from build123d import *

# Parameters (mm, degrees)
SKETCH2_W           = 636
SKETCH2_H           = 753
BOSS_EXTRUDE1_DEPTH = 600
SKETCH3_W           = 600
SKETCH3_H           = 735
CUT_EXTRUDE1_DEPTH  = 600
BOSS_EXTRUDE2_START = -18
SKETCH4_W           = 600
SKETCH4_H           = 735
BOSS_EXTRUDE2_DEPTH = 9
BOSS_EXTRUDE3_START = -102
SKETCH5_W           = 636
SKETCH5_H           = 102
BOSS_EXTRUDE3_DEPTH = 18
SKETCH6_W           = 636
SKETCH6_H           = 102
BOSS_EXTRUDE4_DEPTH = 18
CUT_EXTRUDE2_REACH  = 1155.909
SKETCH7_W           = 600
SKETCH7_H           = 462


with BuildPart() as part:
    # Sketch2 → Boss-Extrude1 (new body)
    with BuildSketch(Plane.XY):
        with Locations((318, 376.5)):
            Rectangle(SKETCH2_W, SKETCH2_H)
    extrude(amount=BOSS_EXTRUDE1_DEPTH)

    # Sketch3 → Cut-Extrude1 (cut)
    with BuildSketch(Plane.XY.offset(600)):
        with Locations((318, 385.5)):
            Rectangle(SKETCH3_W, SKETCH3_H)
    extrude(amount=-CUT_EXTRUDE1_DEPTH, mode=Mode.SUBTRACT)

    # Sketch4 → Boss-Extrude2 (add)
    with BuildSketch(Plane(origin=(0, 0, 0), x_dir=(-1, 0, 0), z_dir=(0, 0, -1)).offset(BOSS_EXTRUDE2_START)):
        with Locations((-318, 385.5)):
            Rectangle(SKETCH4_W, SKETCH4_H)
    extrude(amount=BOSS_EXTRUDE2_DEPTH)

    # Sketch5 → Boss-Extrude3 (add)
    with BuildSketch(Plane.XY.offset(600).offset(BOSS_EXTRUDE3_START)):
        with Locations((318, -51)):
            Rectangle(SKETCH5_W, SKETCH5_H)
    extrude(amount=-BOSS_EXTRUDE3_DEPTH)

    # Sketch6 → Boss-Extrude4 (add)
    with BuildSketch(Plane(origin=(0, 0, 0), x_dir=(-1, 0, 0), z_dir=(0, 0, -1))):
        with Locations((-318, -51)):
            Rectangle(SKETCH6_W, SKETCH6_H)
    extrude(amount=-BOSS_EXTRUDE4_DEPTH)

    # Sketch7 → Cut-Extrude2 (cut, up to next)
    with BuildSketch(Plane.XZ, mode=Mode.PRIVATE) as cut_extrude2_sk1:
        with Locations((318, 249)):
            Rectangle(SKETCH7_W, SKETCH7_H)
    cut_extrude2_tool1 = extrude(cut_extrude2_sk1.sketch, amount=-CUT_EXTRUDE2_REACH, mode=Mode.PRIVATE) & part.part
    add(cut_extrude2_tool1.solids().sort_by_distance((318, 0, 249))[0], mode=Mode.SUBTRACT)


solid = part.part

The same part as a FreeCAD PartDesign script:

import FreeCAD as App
import Part
import Sketcher
from FreeCAD import Vector
Q = App.Units.Quantity

doc = App.newDocument("Part")
body = doc.addObject("PartDesign::Body", "Body")

# Sketch on XY plane
sketch1 = body.newObject("Sketcher::SketchObject", "Sketch")
sketch1.AttachmentSupport = (doc.getObject("XY_Plane"), [""])
sketch1.MapMode = "FlatFace"
sketch1.addGeometry([
    Part.LineSegment(Vector(0, 753, 0), Vector(0, 0, 0)),
    Part.LineSegment(Vector(0, 0, 0), Vector(636, 0, 0)),
    Part.LineSegment(Vector(636, 0, 0), Vector(636, 753, 0)),
    Part.LineSegment(Vector(636, 753, 0), Vector(0, 753, 0)),
], False)
sketch1.addConstraint([
    Sketcher.Constraint("Coincident", 0, 2, 1, 1),
    Sketcher.Constraint("Coincident", 1, 2, 2, 1),
    Sketcher.Constraint("Coincident", 2, 2, 3, 1),
    Sketcher.Constraint("Coincident", 3, 2, 0, 1),
    Sketcher.Constraint("Vertical", 0),
    Sketcher.Constraint("Horizontal", 1),
    Sketcher.Constraint("Vertical", 2),
    Sketcher.Constraint("Horizontal", 3),
    Sketcher.Constraint("Coincident", 0, 2, -1, 1),
    Sketcher.Constraint("DistanceX", 1, 1, 1, 2, Q("636 mm")),
    Sketcher.Constraint("DistanceY", 0, 2, 0, 1, Q("753 mm")),
])
pad1 = body.newObject("PartDesign::Pad", "Pad")
pad1.Profile = sketch1
pad1.Length = 600

# Sketch on XY plane
sketch2 = body.newObject("Sketcher::SketchObject", "Sketch001")
sketch2.AttachmentSupport = (doc.getObject("XY_Plane"), [""])
sketch2.MapMode = "FlatFace"
sketch2.AttachmentOffset = App.Placement(Vector(0, 0, 600), App.Rotation())
sketch2.addGeometry([
    Part.LineSegment(Vector(18, 753, 0), Vector(18, 18, 0)),
    Part.LineSegment(Vector(18, 18, 0), Vector(618, 18, 0)),
    Part.LineSegment(Vector(618, 18, 0), Vector(618, 753, 0)),
    Part.LineSegment(Vector(618, 753, 0), Vector(18, 753, 0)),
], False)
sketch2.addConstraint([
    Sketcher.Constraint("Coincident", 0, 2, 1, 1),
    Sketcher.Constraint("Coincident", 1, 2, 2, 1),
    Sketcher.Constraint("Coincident", 2, 2, 3, 1),
    Sketcher.Constraint("Coincident", 3, 2, 0, 1),
    Sketcher.Constraint("Vertical", 0),
    Sketcher.Constraint("Horizontal", 1),
    Sketcher.Constraint("Vertical", 2),
    Sketcher.Constraint("Horizontal", 3),
    Sketcher.Constraint("DistanceX", 1, 1, 1, 2, Q("600 mm")),
    Sketcher.Constraint("DistanceY", 0, 2, 0, 1, Q("735 mm")),
    Sketcher.Constraint("DistanceX", -1, 1, 0, 2, Q("18 mm")),
    Sketcher.Constraint("DistanceY", -1, 1, 0, 2, Q("18 mm")),
])
pocket1 = body.newObject("PartDesign::Pocket", "Pocket")
pocket1.Profile = sketch2
pocket1.Length = 600

# Sketch on XY plane
sketch3 = body.newObject("Sketcher::SketchObject", "Sketch002")
sketch3.AttachmentSupport = (doc.getObject("XY_Plane"), [""])
sketch3.MapMode = "FlatFace"
sketch3.AttachmentOffset = App.Placement(Vector(0, 0, 18), App.Rotation())
sketch3.addGeometry([
    Part.LineSegment(Vector(618, 753, 0), Vector(618, 18, 0)),
    Part.LineSegment(Vector(618, 18, 0), Vector(18, 18, 0)),
    Part.LineSegment(Vector(18, 18, 0), Vector(18, 753, 0)),
    Part.LineSegment(Vector(18, 753, 0), Vector(618, 753, 0)),
], False)
sketch3.addConstraint([
    Sketcher.Constraint("Coincident", 0, 2, 1, 1),
    Sketcher.Constraint("Coincident", 1, 2, 2, 1),
    Sketcher.Constraint("Coincident", 2, 2, 3, 1),
    Sketcher.Constraint("Coincident", 3, 2, 0, 1),
    Sketcher.Constraint("Vertical", 0),
    Sketcher.Constraint("Horizontal", 1),
    Sketcher.Constraint("Vertical", 2),
    Sketcher.Constraint("Horizontal", 3),
    Sketcher.Constraint("DistanceX", 1, 2, 1, 1, Q("600 mm")),
    Sketcher.Constraint("DistanceY", 0, 2, 0, 1, Q("735 mm")),
    Sketcher.Constraint("DistanceX", -1, 1, 0, 2, Q("618 mm")),
    Sketcher.Constraint("DistanceY", -1, 1, 0, 2, Q("18 mm")),
])
pad2 = body.newObject("PartDesign::Pad", "Pad001")
pad2.Profile = sketch3
pad2.Length = 9
pad2.Reversed = True

# Sketch on XY plane
sketch4 = body.newObject("Sketcher::SketchObject", "Sketch003")
sketch4.AttachmentSupport = (doc.getObject("XY_Plane"), [""])
sketch4.MapMode = "FlatFace"
sketch4.AttachmentOffset = App.Placement(Vector(0, 0, 498), App.Rotation())
sketch4.addGeometry([
    Part.LineSegment(Vector(0, 0, 0), Vector(0, -102, 0)),
    Part.LineSegment(Vector(0, -102, 0), Vector(636, -102, 0)),
    Part.LineSegment(Vector(636, -102, 0), Vector(636, 0, 0)),
    Part.LineSegment(Vector(636, 0, 0), Vector(0, 0, 0)),
], False)
sketch4.addConstraint([
    Sketcher.Constraint("Coincident", 0, 2, 1, 1),
    Sketcher.Constraint("Coincident", 1, 2, 2, 1),
    Sketcher.Constraint("Coincident", 2, 2, 3, 1),
    Sketcher.Constraint("Coincident", 3, 2, 0, 1),
    Sketcher.Constraint("Vertical", 0),
    Sketcher.Constraint("Horizontal", 1),
    Sketcher.Constraint("Vertical", 2),
    Sketcher.Constraint("Horizontal", 3),
    Sketcher.Constraint("Coincident", 3, 2, -1, 1),
    Sketcher.Constraint("DistanceX", 1, 1, 1, 2, Q("636 mm")),
    Sketcher.Constraint("DistanceY", 0, 2, 0, 1, Q("102 mm")),
])
pad3 = body.newObject("PartDesign::Pad", "Pad002")
pad3.Profile = sketch4
pad3.Length = 18
pad3.Reversed = True

# Sketch on XY plane
sketch5 = body.newObject("Sketcher::SketchObject", "Sketch004")
sketch5.AttachmentSupport = (doc.getObject("XY_Plane"), [""])
sketch5.MapMode = "FlatFace"
sketch5.addGeometry([
    Part.LineSegment(Vector(636, 0, 0), Vector(636, -102, 0)),
    Part.LineSegment(Vector(636, -102, 0), Vector(0, -102, 0)),
    Part.LineSegment(Vector(0, -102, 0), Vector(0, 0, 0)),
    Part.LineSegment(Vector(0, 0, 0), Vector(636, 0, 0)),
], False)
sketch5.addConstraint([
    Sketcher.Constraint("Coincident", 0, 2, 1, 1),
    Sketcher.Constraint("Coincident", 1, 2, 2, 1),
    Sketcher.Constraint("Coincident", 2, 2, 3, 1),
    Sketcher.Constraint("Coincident", 3, 2, 0, 1),
    Sketcher.Constraint("Vertical", 0),
    Sketcher.Constraint("Horizontal", 1),
    Sketcher.Constraint("Vertical", 2),
    Sketcher.Constraint("Horizontal", 3),
    Sketcher.Constraint("Coincident", 2, 2, -1, 1),
    Sketcher.Constraint("DistanceX", 1, 2, 1, 1, Q("636 mm")),
    Sketcher.Constraint("DistanceY", 0, 2, 0, 1, Q("102 mm")),
])
pad4 = body.newObject("PartDesign::Pad", "Pad003")
pad4.Profile = sketch5
pad4.Length = 18

# Sketch on XZ plane
sketch6 = body.newObject("Sketcher::SketchObject", "Sketch005")
sketch6.AttachmentSupport = (doc.getObject("XZ_Plane"), [""])
sketch6.MapMode = "FlatFace"
sketch6.addGeometry([
    Part.LineSegment(Vector(18, 480, 0), Vector(18, 18, 0)),
    Part.LineSegment(Vector(18, 18, 0), Vector(618, 18, 0)),
    Part.LineSegment(Vector(618, 18, 0), Vector(618, 480, 0)),
    Part.LineSegment(Vector(618, 480, 0), Vector(18, 480, 0)),
], False)
sketch6.addConstraint([
    Sketcher.Constraint("Coincident", 0, 2, 1, 1),
    Sketcher.Constraint("Coincident", 1, 2, 2, 1),
    Sketcher.Constraint("Coincident", 2, 2, 3, 1),
    Sketcher.Constraint("Coincident", 3, 2, 0, 1),
    Sketcher.Constraint("Vertical", 0),
    Sketcher.Constraint("Horizontal", 1),
    Sketcher.Constraint("Vertical", 2),
    Sketcher.Constraint("Horizontal", 3),
    Sketcher.Constraint("DistanceX", 1, 1, 1, 2, Q("600 mm")),
    Sketcher.Constraint("DistanceY", 0, 2, 0, 1, Q("462 mm")),
    Sketcher.Constraint("DistanceX", -1, 1, 0, 2, Q("18 mm")),
    Sketcher.Constraint("DistanceY", -1, 1, 0, 2, Q("18 mm")),
])
pocket2 = body.newObject("PartDesign::Pocket", "Pocket001")
pocket2.Profile = sketch6
pocket2.Type = "UpToFirst"

doc.recompute()
